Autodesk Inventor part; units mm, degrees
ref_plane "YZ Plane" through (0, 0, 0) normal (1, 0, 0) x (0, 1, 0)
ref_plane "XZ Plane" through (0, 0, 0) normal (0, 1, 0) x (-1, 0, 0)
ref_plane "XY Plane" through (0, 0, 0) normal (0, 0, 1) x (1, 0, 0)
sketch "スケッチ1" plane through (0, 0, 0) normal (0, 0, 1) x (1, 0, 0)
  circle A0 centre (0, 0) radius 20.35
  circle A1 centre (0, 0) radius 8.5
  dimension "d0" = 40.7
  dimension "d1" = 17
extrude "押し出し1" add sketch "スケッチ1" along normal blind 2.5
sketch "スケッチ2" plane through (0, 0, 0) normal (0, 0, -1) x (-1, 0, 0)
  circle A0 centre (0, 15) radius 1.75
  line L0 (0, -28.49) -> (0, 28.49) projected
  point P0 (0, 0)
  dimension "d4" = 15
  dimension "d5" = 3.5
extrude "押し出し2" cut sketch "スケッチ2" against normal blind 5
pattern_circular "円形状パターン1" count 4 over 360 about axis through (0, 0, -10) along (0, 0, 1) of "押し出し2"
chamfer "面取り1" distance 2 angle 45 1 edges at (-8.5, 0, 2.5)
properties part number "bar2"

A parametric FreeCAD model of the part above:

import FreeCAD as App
import Part
import Sketcher
from FreeCAD import Vector


def edges_at(feature, points):
    """Names of the edges that pass closest to the given points."""
    edges = feature.Shape.Edges
    near = lambda p: min(range(len(edges)), key=lambda i: edges[i].distToShape(Part.Vertex(*p))[0])
    return sorted({f"Edge{near(p) + 1}" for p in points})

doc = App.newDocument("Part")
body = doc.addObject("PartDesign::Body", "Body")

sketch1 = doc.addObject("Sketcher::SketchObject", "Sketch")
body.addObject(sketch1)
sketch1.AttachmentSupport = (doc.XY_Plane, [""])
sketch1.MapMode = "FlatFace"
sketch1.addGeometry(Part.Circle(Vector(0, 0, 0), Vector(0, 0, 1), 20), False)
sketch1.addGeometry(Part.Circle(Vector(0, 0, 0), Vector(0, 0, 1), 8), False)
sketch1.addConstraint(Sketcher.Constraint("Coincident", 0, 3, -1, 1))
sketch1.addConstraint(Sketcher.Constraint("Coincident", 1, 3, -1, 1))
sketch1.addConstraint(Sketcher.Constraint("Diameter", 1, 17.0))
sketch1.addConstraint(Sketcher.Constraint("Diameter", 0, 40.7))
pad1 = doc.addObject("PartDesign::Pad", "Pad")
body.addObject(pad1)
pad1.Profile = sketch1
pad1.Length = 2.5

sketch2 = doc.addObject("Sketcher::SketchObject", "Sketch001")
body.addObject(sketch2)
sketch2.AttachmentSupport = (doc.XY_Plane, [""])
sketch2.MapMode = "FlatFace"
sketch2.addGeometry(Part.Circle(Vector(0, 15, 0), Vector(0, 0, 1), 1.8), False)
sketch2.addConstraint(Sketcher.Constraint("PointOnObject", 0, 3, -2))
sketch2.addConstraint(Sketcher.Constraint("Diameter", 0, 3.5))
sketch2.addConstraint(Sketcher.Constraint("DistanceY", -1, 1, 0, 3, 15.0))
pocket1 = doc.addObject("PartDesign::Pocket", "Pocket")
body.addObject(pocket1)
pocket1.Profile = sketch2
pocket1.Length = 5
pocket1.Reversed = True
doc.recompute()

polarpattern = doc.addObject("PartDesign::PolarPattern", "PolarPattern")
body.addObject(polarpattern)
polarpattern.Originals = [pocket1]
polarpattern.Axis = (doc.Z_Axis, [""])
polarpattern.Angle = 360
polarpattern.Occurrences = 4
body.Tip = polarpattern
doc.recompute()

chamfer = doc.addObject("PartDesign::Chamfer", "Chamfer")
body.addObject(chamfer)
chamfer.Base = (polarpattern, edges_at(polarpattern, [(-8.5, 0, 2.5)]))
chamfer.Size = 2

doc.recompute()
